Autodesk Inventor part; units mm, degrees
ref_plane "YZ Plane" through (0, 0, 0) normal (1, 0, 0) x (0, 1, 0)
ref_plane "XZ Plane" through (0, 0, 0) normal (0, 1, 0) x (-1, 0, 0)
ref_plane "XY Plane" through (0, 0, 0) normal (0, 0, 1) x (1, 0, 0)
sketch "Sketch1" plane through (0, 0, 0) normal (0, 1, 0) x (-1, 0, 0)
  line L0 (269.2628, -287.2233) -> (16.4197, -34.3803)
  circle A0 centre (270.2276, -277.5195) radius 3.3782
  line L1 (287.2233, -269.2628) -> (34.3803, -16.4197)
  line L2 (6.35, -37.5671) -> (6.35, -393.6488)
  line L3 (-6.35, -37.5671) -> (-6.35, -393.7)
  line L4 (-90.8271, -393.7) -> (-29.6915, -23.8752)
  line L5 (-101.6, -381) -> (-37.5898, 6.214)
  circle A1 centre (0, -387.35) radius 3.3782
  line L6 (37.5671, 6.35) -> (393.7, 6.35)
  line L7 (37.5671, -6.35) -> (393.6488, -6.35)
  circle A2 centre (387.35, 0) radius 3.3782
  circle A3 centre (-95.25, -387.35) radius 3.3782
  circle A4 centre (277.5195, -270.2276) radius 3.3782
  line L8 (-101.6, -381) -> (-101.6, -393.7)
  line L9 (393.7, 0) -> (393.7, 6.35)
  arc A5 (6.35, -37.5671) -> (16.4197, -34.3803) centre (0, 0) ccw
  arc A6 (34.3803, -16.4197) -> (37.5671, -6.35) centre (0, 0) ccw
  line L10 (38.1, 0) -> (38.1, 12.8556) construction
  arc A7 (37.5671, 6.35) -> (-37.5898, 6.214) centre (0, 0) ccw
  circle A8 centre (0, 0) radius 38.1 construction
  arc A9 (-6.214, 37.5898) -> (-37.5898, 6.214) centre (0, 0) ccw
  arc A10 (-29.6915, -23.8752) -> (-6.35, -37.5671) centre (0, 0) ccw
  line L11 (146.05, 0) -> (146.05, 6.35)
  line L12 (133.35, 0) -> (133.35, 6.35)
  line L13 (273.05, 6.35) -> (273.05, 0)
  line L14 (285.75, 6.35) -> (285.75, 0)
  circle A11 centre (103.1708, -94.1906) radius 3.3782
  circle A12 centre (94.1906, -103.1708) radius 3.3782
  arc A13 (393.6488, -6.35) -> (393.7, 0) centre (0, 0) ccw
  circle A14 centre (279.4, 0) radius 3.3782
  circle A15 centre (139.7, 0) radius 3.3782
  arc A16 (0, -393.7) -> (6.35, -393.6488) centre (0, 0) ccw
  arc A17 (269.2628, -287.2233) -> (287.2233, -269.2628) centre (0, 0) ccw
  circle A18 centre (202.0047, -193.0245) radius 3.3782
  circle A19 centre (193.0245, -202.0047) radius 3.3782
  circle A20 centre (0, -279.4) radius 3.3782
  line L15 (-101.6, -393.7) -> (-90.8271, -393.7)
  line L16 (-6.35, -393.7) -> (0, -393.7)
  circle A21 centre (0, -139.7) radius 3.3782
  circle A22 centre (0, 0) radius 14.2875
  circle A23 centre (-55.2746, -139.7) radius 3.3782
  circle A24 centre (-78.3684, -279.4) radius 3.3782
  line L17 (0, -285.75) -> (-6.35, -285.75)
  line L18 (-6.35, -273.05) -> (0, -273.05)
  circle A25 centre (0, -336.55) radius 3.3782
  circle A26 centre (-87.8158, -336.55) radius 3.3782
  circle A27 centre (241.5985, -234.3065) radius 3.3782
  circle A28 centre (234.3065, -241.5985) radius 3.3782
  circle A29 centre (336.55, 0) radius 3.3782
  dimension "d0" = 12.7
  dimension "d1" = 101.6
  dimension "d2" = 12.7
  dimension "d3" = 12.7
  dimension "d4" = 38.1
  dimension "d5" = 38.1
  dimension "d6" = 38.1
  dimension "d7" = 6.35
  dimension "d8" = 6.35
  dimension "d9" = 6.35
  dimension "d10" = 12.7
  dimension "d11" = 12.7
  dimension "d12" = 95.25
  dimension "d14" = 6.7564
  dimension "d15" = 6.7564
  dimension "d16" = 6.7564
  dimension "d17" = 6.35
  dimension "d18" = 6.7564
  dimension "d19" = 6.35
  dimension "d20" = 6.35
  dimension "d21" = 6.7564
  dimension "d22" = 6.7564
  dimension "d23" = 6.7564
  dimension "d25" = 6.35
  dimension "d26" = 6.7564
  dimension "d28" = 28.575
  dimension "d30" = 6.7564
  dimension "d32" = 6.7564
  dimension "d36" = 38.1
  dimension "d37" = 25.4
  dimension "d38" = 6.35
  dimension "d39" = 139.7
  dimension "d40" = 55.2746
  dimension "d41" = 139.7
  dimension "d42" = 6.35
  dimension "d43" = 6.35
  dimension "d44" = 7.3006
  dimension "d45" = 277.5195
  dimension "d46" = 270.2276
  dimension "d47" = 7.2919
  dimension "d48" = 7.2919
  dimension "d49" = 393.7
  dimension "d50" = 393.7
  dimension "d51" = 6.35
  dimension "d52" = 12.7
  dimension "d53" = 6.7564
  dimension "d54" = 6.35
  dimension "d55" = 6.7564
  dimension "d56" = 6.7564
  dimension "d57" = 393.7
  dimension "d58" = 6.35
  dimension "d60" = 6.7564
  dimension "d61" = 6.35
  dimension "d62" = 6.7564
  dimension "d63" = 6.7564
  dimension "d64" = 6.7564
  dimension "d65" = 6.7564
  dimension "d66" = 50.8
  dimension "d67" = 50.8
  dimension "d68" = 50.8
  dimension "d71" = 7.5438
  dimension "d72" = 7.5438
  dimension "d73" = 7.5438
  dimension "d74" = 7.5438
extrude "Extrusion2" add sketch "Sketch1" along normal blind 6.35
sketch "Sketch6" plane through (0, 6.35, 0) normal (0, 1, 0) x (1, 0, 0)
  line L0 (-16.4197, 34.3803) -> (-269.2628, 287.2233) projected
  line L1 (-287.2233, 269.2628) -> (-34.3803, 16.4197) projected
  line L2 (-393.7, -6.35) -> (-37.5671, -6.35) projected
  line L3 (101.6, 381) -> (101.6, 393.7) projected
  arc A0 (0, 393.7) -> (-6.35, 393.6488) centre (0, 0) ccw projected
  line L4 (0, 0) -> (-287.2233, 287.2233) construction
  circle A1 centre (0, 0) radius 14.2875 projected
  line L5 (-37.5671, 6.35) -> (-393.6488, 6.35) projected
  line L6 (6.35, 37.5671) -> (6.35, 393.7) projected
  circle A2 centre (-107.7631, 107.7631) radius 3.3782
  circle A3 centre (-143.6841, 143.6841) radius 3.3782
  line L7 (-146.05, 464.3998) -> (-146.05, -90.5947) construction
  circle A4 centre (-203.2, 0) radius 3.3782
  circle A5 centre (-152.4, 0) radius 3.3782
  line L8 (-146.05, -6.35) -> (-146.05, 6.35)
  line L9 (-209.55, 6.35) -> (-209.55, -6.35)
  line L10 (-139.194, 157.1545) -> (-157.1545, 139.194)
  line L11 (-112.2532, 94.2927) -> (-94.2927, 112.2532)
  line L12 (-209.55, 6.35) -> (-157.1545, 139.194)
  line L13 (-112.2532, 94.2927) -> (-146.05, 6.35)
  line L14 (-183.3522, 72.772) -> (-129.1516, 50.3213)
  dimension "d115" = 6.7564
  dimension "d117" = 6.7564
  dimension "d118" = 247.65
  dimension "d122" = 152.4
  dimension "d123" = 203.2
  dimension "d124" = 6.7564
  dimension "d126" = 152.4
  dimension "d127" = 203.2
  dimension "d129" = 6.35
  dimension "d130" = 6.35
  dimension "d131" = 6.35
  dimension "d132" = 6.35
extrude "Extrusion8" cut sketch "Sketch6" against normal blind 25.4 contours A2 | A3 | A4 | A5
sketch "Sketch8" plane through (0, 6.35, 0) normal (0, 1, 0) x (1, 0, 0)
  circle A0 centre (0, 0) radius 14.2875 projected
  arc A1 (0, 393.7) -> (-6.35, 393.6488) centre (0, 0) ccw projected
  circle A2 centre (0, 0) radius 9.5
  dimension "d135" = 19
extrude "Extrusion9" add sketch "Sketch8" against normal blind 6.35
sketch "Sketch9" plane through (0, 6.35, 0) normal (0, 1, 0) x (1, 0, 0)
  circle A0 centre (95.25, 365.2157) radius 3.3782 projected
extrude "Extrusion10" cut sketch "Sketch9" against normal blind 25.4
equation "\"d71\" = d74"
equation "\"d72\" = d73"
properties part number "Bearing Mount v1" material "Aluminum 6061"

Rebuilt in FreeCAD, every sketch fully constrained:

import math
import FreeCAD as App
import Part
import Sketcher
Q = App.Units.Quantity

doc = App.newDocument("Part")
params = doc.addObject("Spreadsheet::Sheet", "Params")
for row, (alias, value) in enumerate([
    ("sketch1_radius", "15.5 in"),
    ("sketch1_radius2", "1.5 in"),
    ("sketch1_radius3", "1.5 in"),
    ("sketch1_diameter", "0.266 in"),
    ("sketch1_diameter2", "0.266 in"),
    ("pad1_length", "0.25 in"),
    ("sketch2_diameter", "0.266 in"),
    ("pocket1_length", "1 in"),
    ("sketch3_diameter", "1.125 in"),
    ("pad2_length", "0.25 in"),
    ("sketch4_diameter", "0.266 in"),
    ("pocket2_length", "1 in"),
], start=1):
    params.set(f"A{row}", alias)
    params.set(f"B{row}", "=" + value)
    params.setAlias(f"B{row}", alias)

body = doc.addObject("PartDesign::Body", "Body")

sketch1 = doc.addObject("Sketcher::SketchObject", "Sketch")
body.addObject(sketch1)
sketch1.AttachmentSupport = (doc.XZ_Plane, [""])
sketch1.MapMode = "FlatFace"
sketch1.addGeometry(Part.LineSegment(App.Vector(-16.4197, -34.3803, 0), App.Vector(-269.2628, -287.2233, 0)), False)
sketch1.addGeometry(Part.ArcOfCircle(Part.Circle(App.Vector(0, 0, 0), App.Vector(0, 0, 1), 393.699987), math.radians(-136.84857), math.radians(-133.15143)), False)
sketch1.addGeometry(Part.LineSegment(App.Vector(-287.2233, -269.2628, 0), App.Vector(-34.3803, -16.4197, 0)), False)
sketch1.addGeometry(Part.ArcOfCircle(Part.Circle(App.Vector(-0.001314, -0.000519, 0), App.Vector(0, 0, 1), 38.098611), math.radians(-170.40637), math.radians(-154.471161)), False)
sketch1.addGeometry(Part.LineSegment(App.Vector(-37.5671, -6.35, 0), App.Vector(-393.6488, -6.35, 0)), False)
sketch1.addGeometry(Part.ArcOfCircle(Part.Circle(App.Vector(-0.19986, -0.002418, 0), App.Vector(0, 0, 1), 393.50014), math.radians(179.999648), math.radians(180.924283)), False)
sketch1.addGeometry(Part.LineSegment(App.Vector(-393.7, 0, 0), App.Vector(-393.7, 6.35, 0)), False)
sketch1.addGeometry(Part.LineSegment(App.Vector(-393.7, 6.35, 0), App.Vector(-37.5671, 6.35, 0)), False)
sketch1.addGeometry(Part.ArcOfCircle(Part.Circle(App.Vector(0, 0, 0), App.Vector(0, 0, 1), 38.099959), math.radians(9.38672), math.radians(170.40593)), False)
sketch1.addGeometry(Part.LineSegment(App.Vector(37.5898, 6.214, 0), App.Vector(101.6, -381, 0)), False)
sketch1.addGeometry(Part.LineSegment(App.Vector(101.6, -381, 0), App.Vector(101.6, -393.7, 0)), False)
sketch1.addGeometry(Part.LineSegment(App.Vector(101.6, -393.7, 0), App.Vector(90.8271, -393.7, 0)), False)
sketch1.addGeometry(Part.LineSegment(App.Vector(90.8271, -393.7, 0), App.Vector(29.6915, -23.8752, 0)), False)
sketch1.addGeometry(Part.ArcOfCircle(Part.Circle(App.Vector(0, 0, 0), App.Vector(0, 0, 1), 38.099959), math.radians(-80.40593), math.radians(-38.803072)), False)
sketch1.addGeometry(Part.LineSegment(App.Vector(6.35, -37.5671, 0), App.Vector(6.35, -393.7, 0)), False)
sketch1.addGeometry(Part.LineSegment(App.Vector(6.35, -393.7, 0), App.Vector(0, -393.7, 0)), False)
sketch1.addGeometry(Part.ArcOfCircle(Part.Circle(App.Vector(0.000807, 0.200076, 0), App.Vector(0, 0, 1), 393.900076), math.radians(-90.923813), math.radians(-90.000117)), False)
sketch1.addGeometry(Part.LineSegment(App.Vector(-6.35, -393.6488, 0), App.Vector(-6.35, -37.5671, 0)), False)
sketch1.addGeometry(Part.ArcOfCircle(Part.Circle(App.Vector(0.000332, 0.001374, 0), App.Vector(0, 0, 1), 38.101403), math.radians(-115.528251), math.radians(-99.594218)), False)
sketch1.addGeometry(Part.Circle(App.Vector(95.25, -387.35, 0), App.Vector(0, 0, 1), 3.3782), False)
sketch1.addGeometry(Part.Circle(App.Vector(0, -387.35, 0), App.Vector(0, 0, 1), 3.3782), False)
sketch1.addGeometry(Part.Circle(App.Vector(87.8158, -336.55, 0), App.Vector(0, 0, 1), 3.3782), False)
sketch1.addGeometry(Part.Circle(App.Vector(0, -336.55, 0), App.Vector(0, 0, 1), 3.3782), False)
sketch1.addGeometry(Part.Circle(App.Vector(78.3684, -279.4, 0), App.Vector(0, 0, 1), 3.3782), False)
sketch1.addGeometry(Part.Circle(App.Vector(0, -279.4, 0), App.Vector(0, 0, 1), 3.3782), False)
sketch1.addGeometry(Part.Circle(App.Vector(-234.3065, -241.5985, 0), App.Vector(0, 0, 1), 3.3782), False)
sketch1.addGeometry(Part.Circle(App.Vector(-241.5985, -234.3065, 0), App.Vector(0, 0, 1), 3.3782), False)
sketch1.addGeometry(Part.Circle(App.Vector(-193.0245, -202.0047, 0), App.Vector(0, 0, 1), 3.3782), False)
sketch1.addGeometry(Part.Circle(App.Vector(-202.0047, -193.0245, 0), App.Vector(0, 0, 1), 3.3782), False)
sketch1.addGeometry(Part.Circle(App.Vector(-270.2276, -277.5195, 0), App.Vector(0, 0, 1), 3.3782), False)
sketch1.addGeometry(Part.Circle(App.Vector(-277.5195, -270.2276, 0), App.Vector(0, 0, 1), 3.3782), False)
sketch1.addGeometry(Part.Circle(App.Vector(55.2746, -139.7, 0), App.Vector(0, 0, 1), 3.3782), False)
sketch1.addGeometry(Part.Circle(App.Vector(0, -139.7, 0), App.Vector(0, 0, 1), 3.3782), False)
sketch1.addGeometry(Part.Circle(App.Vector(-94.1906, -103.1708, 0), App.Vector(0, 0, 1), 3.3782), False)
sketch1.addGeometry(Part.Circle(App.Vector(-103.1708, -94.1906, 0), App.Vector(0, 0, 1), 3.3782), False)
sketch1.addGeometry(Part.Circle(App.Vector(0, 0, 0), App.Vector(0, 0, 1), 14.2875), False)
sketch1.addGeometry(Part.Circle(App.Vector(-139.7, 0, 0), App.Vector(0, 0, 1), 3.3782), False)
sketch1.addGeometry(Part.Circle(App.Vector(-279.4, 0, 0), App.Vector(0, 0, 1), 3.3782), False)
sketch1.addGeometry(Part.Circle(App.Vector(-336.55, 0, 0), App.Vector(0, 0, 1), 3.3782), False)
sketch1.addGeometry(Part.Circle(App.Vector(-387.35, 0, 0), App.Vector(0, 0, 1), 3.3782), False)
sketch1.addConstraint(Sketcher.Constraint("Coincident", 0, 2, 1, 2))
sketch1.addConstraint(Sketcher.Constraint("Coincident", 1, 1, 2, 1))
sketch1.addConstraint(Sketcher.Constraint("Coincident", 2, 2, 3, 2))
sketch1.addConstraint(Sketcher.Constraint("Coincident", 3, 1, 4, 1))
sketch1.addConstraint(Sketcher.Constraint("Coincident", 4, 2, 5, 2))
sketch1.addConstraint(Sketcher.Constraint("Coincident", 5, 1, 6, 1))
sketch1.addConstraint(Sketcher.Constraint("Coincident", 6, 2, 7, 1))
sketch1.addConstraint(Sketcher.Constraint("Coincident", 7, 2, 8, 2))
sketch1.addConstraint(Sketcher.Constraint("Coincident", 8, 1, 9, 1))
sketch1.addConstraint(Sketcher.Constraint("Coincident", 9, 2, 10, 1))
sketch1.addConstraint(Sketcher.Constraint("Coincident", 10, 2, 11, 1))
sketch1.addConstraint(Sketcher.Constraint("Coincident", 11, 2, 12, 1))
sketch1.addConstraint(Sketcher.Constraint("Coincident", 12, 2, 13, 2))
sketch1.addConstraint(Sketcher.Constraint("Coincident", 13, 1, 14, 1))
sketch1.addConstraint(Sketcher.Constraint("Coincident", 14, 2, 15, 1))
sketch1.addConstraint(Sketcher.Constraint("Coincident", 15, 2, 16, 2))
sketch1.addConstraint(Sketcher.Constraint("Coincident", 16, 1, 17, 1))
sketch1.addConstraint(Sketcher.Constraint("Coincident", 17, 2, 18, 2))
sketch1.addConstraint(Sketcher.Constraint("Coincident", 18, 1, 0, 1))
sketch1.addConstraint(Sketcher.Constraint("Horizontal", 4))
sketch1.addConstraint(Sketcher.Constraint("Vertical", 6))
sketch1.addConstraint(Sketcher.Constraint("Horizontal", 7))
sketch1.addConstraint(Sketcher.Constraint("Vertical", 10))
sketch1.addConstraint(Sketcher.Constraint("Horizontal", 11))
sketch1.addConstraint(Sketcher.Constraint("Vertical", 14))
sketch1.addConstraint(Sketcher.Constraint("Horizontal", 15))
sketch1.addConstraint(Sketcher.Constraint("Vertical", 17))
sketch1.addConstraint(Sketcher.Constraint("Coincident", 1, 3, -1, 1))
sketch1.addConstraint(Sketcher.Constraint("Coincident", 8, 3, -1, 1))
sketch1.addConstraint(Sketcher.Constraint("Coincident", 13, 3, -1, 1))
sketch1.addConstraint(Sketcher.Constraint("Coincident", 35, 3, -1, 1))
sketch1.addConstraint(Sketcher.Constraint("PointOnObject", 20, 3, -2))
sketch1.addConstraint(Sketcher.Constraint("PointOnObject", 22, 3, -2))
sketch1.addConstraint(Sketcher.Constraint("PointOnObject", 24, 3, -2))
sketch1.addConstraint(Sketcher.Constraint("PointOnObject", 32, 3, -2))
sketch1.addConstraint(Sketcher.Constraint("PointOnObject", 36, 3, -1))
sketch1.addConstraint(Sketcher.Constraint("PointOnObject", 37, 3, -1))
sketch1.addConstraint(Sketcher.Constraint("PointOnObject", 38, 3, -1))
sketch1.addConstraint(Sketcher.Constraint("PointOnObject", 39, 3, -1))
sketch1.addConstraint(Sketcher.Constraint("PointOnObject", 5, 1, -1))
sketch1.addConstraint(Sketcher.Constraint("PointOnObject", 15, 2, -2))
sketch1.addConstraint(Sketcher.Constraint("Radius", 1, Q("15.5 in")))
sketch1.addConstraint(Sketcher.Constraint("Radius", 8, Q("1.5 in")))
sketch1.addConstraint(Sketcher.Constraint("Radius", 13, Q("1.5 in")))
sketch1.addConstraint(Sketcher.Constraint("Diameter", 19, Q("0.266 in")))
sketch1.addConstraint(Sketcher.Constraint("Diameter", 20, Q("0.266 in")))
sketch1.addConstraint(Sketcher.Constraint("Diameter", 21, Q("0.266 in")))
sketch1.addConstraint(Sketcher.Constraint("Diameter", 22, Q("0.266 in")))
sketch1.addConstraint(Sketcher.Constraint("Diameter", 23, Q("0.266 in")))
sketch1.addConstraint(Sketcher.Constraint("Diameter", 24, Q("0.266 in")))
sketch1.addConstraint(Sketcher.Constraint("Diameter", 25, Q("0.266 in")))
sketch1.addConstraint(Sketcher.Constraint("Diameter", 26, Q("0.266 in")))
sketch1.addConstraint(Sketcher.Constraint("Diameter", 27, Q("0.266 in")))
sketch1.addConstraint(Sketcher.Constraint("Diameter", 28, Q("0.266 in")))
sketch1.addConstraint(Sketcher.Constraint("Diameter", 29, Q("0.266 in")))
sketch1.addConstraint(Sketcher.Constraint("Diameter", 30, Q("0.266 in")))
sketch1.addConstraint(Sketcher.Constraint("Diameter", 31, Q("0.266 in")))
sketch1.addConstraint(Sketcher.Constraint("Diameter", 32, Q("0.266 in")))
sketch1.addConstraint(Sketcher.Constraint("Diameter", 33, Q("0.266 in")))
sketch1.addConstraint(Sketcher.Constraint("Diameter", 34, Q("0.266 in")))
sketch1.addConstraint(Sketcher.Constraint("Diameter", 35, Q("1.125 in")))
sketch1.addConstraint(Sketcher.Constraint("Diameter", 36, Q("0.266 in")))
sketch1.addConstraint(Sketcher.Constraint("Diameter", 37, Q("0.266 in")))
sketch1.addConstraint(Sketcher.Constraint("Diameter", 38, Q("0.266 in")))
sketch1.addConstraint(Sketcher.Constraint("Diameter", 39, Q("0.266 in")))
sketch1.addConstraint(Sketcher.Constraint("DistanceY", 10, 2, 10, 1, Q("0.5 in")))
sketch1.addConstraint(Sketcher.Constraint("DistanceX", -1, 1, 9, 2, Q("4 in")))
sketch1.addConstraint(Sketcher.Constraint("DistanceY", 19, 3, 21, 3, Q("2 in")))
sketch1.addConstraint(Sketcher.Constraint("DistanceY", 20, 3, 21, 3, Q("2 in")))
sketch1.addConstraint(Sketcher.Constraint("DistanceY", 20, 3, 22, 3, Q("2 in")))
sketch1.addConstraint(Sketcher.Constraint("DistanceX", 39, 3, 38, 3, Q("2 in")))
sketch1.addConstraint(Sketcher.Constraint("DistanceY", 9, 2, 23, 3, Q("4 in")))
sketch1.addConstraint(Sketcher.Constraint("DistanceX", 15, 2, 15, 1, Q("0.25 in")))
sketch1.addConstraint(Sketcher.Constraint("DistanceY", 6, 1, 6, 2, Q("0.25 in")))
sketch1.addConstraint(Sketcher.Constraint("DistanceY", 31, 3, -1, 1, Q("5.5 in")))
sketch1.addConstraint(Sketcher.Constraint("DistanceY", 32, 3, -1, 1, Q("5.5 in")))
sketch1.addConstraint(Sketcher.Constraint("DistanceX", 36, 3, -1, 1, Q("5.5 in")))
sketch1.addConstraint(Sketcher.Constraint("DistanceX", 5, 1, -1, 1, Q("15.5 in")))
sketch1.addConstraint(Sketcher.Constraint("DistanceY", 10, 2, -1, 1, Q("15.5 in")))
sketch1.addConstraint(Sketcher.Constraint("DistanceY", 14, 2, -1, 1, Q("15.5 in")))
sketch1.addConstraint(Sketcher.Constraint("DistanceY", 24, 3, 31, 3, Q("5.5 in")))
sketch1.addConstraint(Sketcher.Constraint("DistanceX", 37, 3, 36, 3, Q("5.5 in")))
sketch1.addConstraint(Sketcher.Constraint("DistanceY", 4, 2, 6, 2, Q("0.5 in")))
sketch1.addConstraint(Sketcher.Constraint("DistanceX", 17, 2, 13, 1, Q("0.5 in")))
sketch1.addConstraint(Sketcher.Constraint("DistanceX", -1, 1, 19, 3, Q("3.75 in")))
sketch1.addConstraint(Sketcher.Constraint("DistanceX", 5, 1, 39, 3, Q("0.25 in")))
sketch1.addConstraint(Sketcher.Constraint("DistanceY", 19, 3, 9, 2, Q("0.25 in")))
sketch1.addConstraint(Sketcher.Constraint("DistanceX", 29, 3, -1, 1, Q("270.2276 mm")))
sketch1.addConstraint(Sketcher.Constraint("DistanceY", 29, 3, -1, 1, Q("277.5195 mm")))
sketch1.addConstraint(Sketcher.Constraint("DistanceX", 30, 3, -1, 1, Q("277.5195 mm")))
sketch1.addConstraint(Sketcher.Constraint("DistanceY", 30, 3, -1, 1, Q("270.2276 mm")))
sketch1.addConstraint(Sketcher.Constraint("DistanceX", -1, 1, 31, 3, Q("55.2746 mm")))
sketch1.addConstraint(Sketcher.Constraint("Radius", 3, Q("38.0986 mm")))
sketch1.addConstraint(Sketcher.Constraint("Radius", 5, Q("393.5001 mm")))
sketch1.addConstraint(Sketcher.Constraint("Radius", 16, Q("393.9 mm")))
sketch1.addConstraint(Sketcher.Constraint("Radius", 18, Q("38.1014 mm")))
sketch1.addConstraint(Sketcher.Constraint("DistanceX", 18, 3, 19, 3, Q("3.7499882 in")))
sketch1.addConstraint(Sketcher.Constraint("DistanceX", 26, 3, 25, 3, Q("7.292 mm")))
sketch1.addConstraint(Sketcher.Constraint("DistanceY", 25, 3, 26, 3, Q("7.292 mm")))
sketch1.addConstraint(Sketcher.Constraint("DistanceY", 32, 3, 3, 3, Q("139.6995 mm")))
sketch1.addConstraint(Sketcher.Constraint("DistanceY", 0, 2, -1, 1, Q("11.308 in")))
sketch1.addConstraint(Sketcher.Constraint("DistanceX", 1, 1, -1, 1, Q("11.308 in")))
sketch1.addConstraint(Sketcher.Constraint("DistanceY", 17, 2, 3, 3, Q("1.479 in")))
sketch1.addConstraint(Sketcher.Constraint("DistanceX", 4, 2, 4, 1, Q("356.0817 mm")))
sketch1.addConstraint(Sketcher.Constraint("DistanceX", 11, 2, 11, 1, Q("10.773 mm")))
sketch1.addConstraint(Sketcher.Constraint("DistanceY", 17, 1, 17, 2, Q("356.0817 mm")))
sketch1.addConstraint(Sketcher.Constraint("DistanceY", 5, 3, -1, 1, Q("0.0001 in")))
sketch1.addConstraint(Sketcher.Constraint("DistanceX", 27, 3, -1, 1, Q("7.5994 in")))
sketch1.addConstraint(Sketcher.Constraint("DistanceY", 28, 3, -1, 1, Q("7.5994 in")))
sketch1.addConstraint(Sketcher.Constraint("DistanceX", 33, 3, -1, 1, Q("3.7083 in")))
sketch1.addConstraint(Sketcher.Constraint("DistanceY", 34, 3, -1, 1, Q("3.7083 in")))
sketch1.addConstraint(Sketcher.Constraint("DistanceY", 25, 3, 27, 3, Q("1.5588 in")))
sketch1.addConstraint(Sketcher.Constraint("DistanceX", 26, 3, 28, 3, Q("1.5588 in")))
sketch1.addConstraint(Sketcher.Constraint("DistanceY", 29, 3, 26, 3, Q("1.7013 in")))
sketch1.addConstraint(Sketcher.Constraint("DistanceX", 30, 3, 25, 3, Q("1.7013 in")))
sketch1.addConstraint(Sketcher.Constraint("DistanceX", 31, 3, 23, 3, Q("0.9092 in")))
sketch1.addConstraint(Sketcher.Constraint("DistanceX", 34, 3, 3, 3, Q("4.0618 in")))
sketch1.addConstraint(Sketcher.Constraint("DistanceX", 2, 2, 3, 3, Q("1.3535 in")))
sketch1.addConstraint(Sketcher.Constraint("DistanceX", 18, 3, 8, 1, Q("1.4799 in")))
sketch1.addConstraint(Sketcher.Constraint("DistanceX", 2, 2, 18, 1, Q("0.7071 in")))
sketch1.addConstraint(Sketcher.Constraint("Distance", 12, Q("374.844 mm")))
sketch1.addConstraint(Sketcher.Constraint("DistanceX", -1, 1, 21, 3, Q("87.8158 mm")))
sketch1.addConstraint(Sketcher.Constraint("DistanceY", 33, 3, -1, 1, Q("103.1708 mm")))
sketch1.setExpression("Constraints[41]", "Params.sketch1_radius")
sketch1.setExpression("Constraints[42]", "Params.sketch1_radius2")
sketch1.setExpression("Constraints[43]", "Params.sketch1_radius3")
sketch1.setExpression("Constraints[44]", "Params.sketch1_diameter")
sketch1.setExpression("Constraints[45]", "Params.sketch1_diameter2")
pad1 = doc.addObject("PartDesign::Pad", "Pad")
body.addObject(pad1)
pad1.Profile = sketch1
pad1.setExpression("Length", "Params.pad1_length")
pad1.Reversed = True

sketch2 = doc.addObject("Sketcher::SketchObject", "Sketch001")
body.addObject(sketch2)
sketch2.AttachmentSupport = (doc.XZ_Plane, [""])
sketch2.MapMode = "FlatFace"
sketch2.AttachmentOffset = App.Placement(App.Vector(0, 0, -0.25 * 25.4), App.Rotation())
sketch2.addGeometry(Part.Circle(App.Vector(-107.8, -107.8, 0), App.Vector(0, 0, 1), 3.4), False)
sketch2.addGeometry(Part.Circle(App.Vector(-143.7, -143.7, 0), App.Vector(0, 0, 1), 3.4), False)
sketch2.addGeometry(Part.Circle(App.Vector(-203.2, 0, 0), App.Vector(0, 0, 1), 3.4), False)
sketch2.addGeometry(Part.Circle(App.Vector(-152.4, 0, 0), App.Vector(0, 0, 1), 3.4), False)
sketch2.addConstraint(Sketcher.Constraint("Equal", 0, 1))
sketch2.addConstraint(Sketcher.Constraint("Equal", 1, 2))
sketch2.addConstraint(Sketcher.Constraint("Equal", 2, 3))
sketch2.addConstraint(Sketcher.Constraint("PointOnObject", 2, 3, -1))
sketch2.addConstraint(Sketcher.Constraint("PointOnObject", 3, 3, -1))
sketch2.addConstraint(Sketcher.Constraint("Diameter", 0, Q("0.266 in")))
sketch2.addConstraint(Sketcher.Constraint("DistanceX", 2, 3, -1, 1, Q("8 in")))
sketch2.addConstraint(Sketcher.Constraint("DistanceX", 3, 3, -1, 1, Q("6 in")))
sketch2.addConstraint(Sketcher.Constraint("DistanceX", 0, 3, -1, 1, Q("107.763 mm")))
sketch2.addConstraint(Sketcher.Constraint("DistanceY", 0, 3, -1, 1, Q("107.763 mm")))
sketch2.addConstraint(Sketcher.Constraint("DistanceX", 1, 3, -1, 1, Q("143.684 mm")))
sketch2.addConstraint(Sketcher.Constraint("DistanceY", 1, 3, -1, 1, Q("143.684 mm")))
sketch2.setExpression("Constraints[5]", "Params.sketch2_diameter")
pocket1 = doc.addObject("PartDesign::Pocket", "Pocket")
body.addObject(pocket1)
pocket1.Profile = sketch2
pocket1.setExpression("Length", "Params.pocket1_length")
pocket1.Reversed = True

sketch3 = doc.addObject("Sketcher::SketchObject", "Sketch002")
body.addObject(sketch3)
sketch3.AttachmentSupport = (doc.XZ_Plane, [""])
sketch3.MapMode = "FlatFace"
sketch3.AttachmentOffset = App.Placement(App.Vector(0, 0, -0.25 * 25.4), App.Rotation())
sketch3.addGeometry(Part.Circle(App.Vector(0, 0, 0), App.Vector(0, 0, 1), 14), False)
sketch3.addGeometry(Part.Circle(App.Vector(0, 0, 0), App.Vector(0, 0, 1), 10), False)
sketch3.addConstraint(Sketcher.Constraint("Coincident", 0, 3, -1, 1))
sketch3.addConstraint(Sketcher.Constraint("Coincident", 1, 3, -1, 1))
sketch3.addConstraint(Sketcher.Constraint("Diameter", 1, Q("19 mm")))
sketch3.addConstraint(Sketcher.Constraint("Diameter", 0, Q("1.125 in")))
sketch3.setExpression("Constraints[3]", "Params.sketch3_diameter")
pad2 = doc.addObject("PartDesign::Pad", "Pad001")
body.addObject(pad2)
pad2.Profile = sketch3
pad2.setExpression("Length", "Params.pad2_length")

sketch4 = doc.addObject("Sketcher::SketchObject", "Sketch003")
body.addObject(sketch4)
sketch4.AttachmentSupport = (doc.XZ_Plane, [""])
sketch4.MapMode = "FlatFace"
sketch4.AttachmentOffset = App.Placement(App.Vector(0, 0, -0.25 * 25.4), App.Rotation())
sketch4.addGeometry(Part.Circle(App.Vector(95.2, -365.2, 0), App.Vector(0, 0, 1), 3.4), False)
sketch4.addConstraint(Sketcher.Constraint("Diameter", 0, Q("0.266 in")))
sketch4.addConstraint(Sketcher.Constraint("DistanceX", -1, 1, 0, 3, Q("3.75 in")))
sketch4.addConstraint(Sketcher.Constraint("DistanceY", 0, 3, -1, 1, Q("365.2157 mm")))
sketch4.setExpression("Constraints[0]", "Params.sketch4_diameter")
pocket2 = doc.addObject("PartDesign::Pocket", "Pocket001")
body.addObject(pocket2)
pocket2.Profile = sketch4
pocket2.setExpression("Length", "Params.pocket2_length")
pocket2.Reversed = True

doc.recompute()
